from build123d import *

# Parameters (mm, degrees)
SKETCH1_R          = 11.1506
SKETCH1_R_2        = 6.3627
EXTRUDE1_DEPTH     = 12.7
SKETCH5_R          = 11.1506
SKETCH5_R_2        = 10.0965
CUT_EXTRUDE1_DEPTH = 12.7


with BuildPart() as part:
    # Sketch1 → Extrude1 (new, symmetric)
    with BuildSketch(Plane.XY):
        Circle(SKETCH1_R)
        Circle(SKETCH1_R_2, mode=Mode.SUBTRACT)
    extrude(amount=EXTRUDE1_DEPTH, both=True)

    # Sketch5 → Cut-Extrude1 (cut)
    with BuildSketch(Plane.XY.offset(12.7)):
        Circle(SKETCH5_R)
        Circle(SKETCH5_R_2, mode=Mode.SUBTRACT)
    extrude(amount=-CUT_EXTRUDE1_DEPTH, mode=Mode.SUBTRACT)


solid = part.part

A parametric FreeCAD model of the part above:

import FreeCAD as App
import Part
import Sketcher
Q = App.Units.Quantity

doc = App.newDocument("Part")
params = doc.addObject("Spreadsheet::Sheet", "Params")
for row, (alias, value) in enumerate([
    ("sketch1_diameter", "0.878 in"),
    ("sketch1_diameter2", "0.501 in"),
    ("pad1_length", "1 in"),
    ("sketch2_diameter", "0.878 in"),
    ("sketch2_diameter2", "0.795 in"),
    ("pocket1_length", "0.5 in"),
], start=1):
    params.set(f"A{row}", alias)
    params.set(f"B{row}", "=" + value)
    params.setAlias(f"B{row}", alias)

body = doc.addObject("PartDesign::Body", "Body")

# Sketch on XY plane
sketch1 = body.newObject("Sketcher::SketchObject", "Sketch")
sketch1.AttachmentSupport = (doc.getObject("XY_Plane"), [""])
sketch1.MapMode = "FlatFace"
sketch1.addGeometry(Part.Circle(App.Vector(0, 0, 0), App.Vector(0, 0, 1), 11.1506), False)
sketch1.addGeometry(Part.Circle(App.Vector(0, 0, 0), App.Vector(0, 0, 1), 6.3627), False)
sketch1.addConstraint(Sketcher.Constraint("Coincident", 0, 3, -1, 1))
sketch1.addConstraint(Sketcher.Constraint("Coincident", 1, 3, -1, 1))
sketch1.addConstraint(Sketcher.Constraint("Diameter", 0, Q("0.878 in")))
sketch1.addConstraint(Sketcher.Constraint("Diameter", 1, Q("0.501 in")))
sketch1.setExpression("Constraints[2]", "Params.sketch1_diameter")
sketch1.setExpression("Constraints[3]", "Params.sketch1_diameter2")
pad1 = body.newObject("PartDesign::Pad", "Pad")
pad1.Profile = sketch1
pad1.setExpression("Length", "Params.pad1_length")
pad1.Midplane = True

# Sketch on XY plane
sketch2 = body.newObject("Sketcher::SketchObject", "Sketch001")
sketch2.AttachmentSupport = (doc.getObject("XY_Plane"), [""])
sketch2.MapMode = "FlatFace"
sketch2.AttachmentOffset = App.Placement(App.Vector(0, 0, 0.5 * 25.4), App.Rotation())
sketch2.addGeometry(Part.Circle(App.Vector(0, 0, 0), App.Vector(0, 0, 1), 11.1506), False)
sketch2.addGeometry(Part.Circle(App.Vector(0, 0, 0), App.Vector(0, 0, 1), 10.0965), False)
sketch2.addConstraint(Sketcher.Constraint("Coincident", 0, 3, -1, 1))
sketch2.addConstraint(Sketcher.Constraint("Coincident", 1, 3, -1, 1))
sketch2.addConstraint(Sketcher.Constraint("Diameter", 0, Q("0.878 in")))
sketch2.addConstraint(Sketcher.Constraint("Diameter", 1, Q("0.795 in")))
sketch2.setExpression("Constraints[2]", "Params.sketch2_diameter")
sketch2.setExpression("Constraints[3]", "Params.sketch2_diameter2")
pocket1 = body.newObject("PartDesign::Pocket", "Pocket")
pocket1.Profile = sketch2
pocket1.setExpression("Length", "Params.pocket1_length")

doc.recompute()
